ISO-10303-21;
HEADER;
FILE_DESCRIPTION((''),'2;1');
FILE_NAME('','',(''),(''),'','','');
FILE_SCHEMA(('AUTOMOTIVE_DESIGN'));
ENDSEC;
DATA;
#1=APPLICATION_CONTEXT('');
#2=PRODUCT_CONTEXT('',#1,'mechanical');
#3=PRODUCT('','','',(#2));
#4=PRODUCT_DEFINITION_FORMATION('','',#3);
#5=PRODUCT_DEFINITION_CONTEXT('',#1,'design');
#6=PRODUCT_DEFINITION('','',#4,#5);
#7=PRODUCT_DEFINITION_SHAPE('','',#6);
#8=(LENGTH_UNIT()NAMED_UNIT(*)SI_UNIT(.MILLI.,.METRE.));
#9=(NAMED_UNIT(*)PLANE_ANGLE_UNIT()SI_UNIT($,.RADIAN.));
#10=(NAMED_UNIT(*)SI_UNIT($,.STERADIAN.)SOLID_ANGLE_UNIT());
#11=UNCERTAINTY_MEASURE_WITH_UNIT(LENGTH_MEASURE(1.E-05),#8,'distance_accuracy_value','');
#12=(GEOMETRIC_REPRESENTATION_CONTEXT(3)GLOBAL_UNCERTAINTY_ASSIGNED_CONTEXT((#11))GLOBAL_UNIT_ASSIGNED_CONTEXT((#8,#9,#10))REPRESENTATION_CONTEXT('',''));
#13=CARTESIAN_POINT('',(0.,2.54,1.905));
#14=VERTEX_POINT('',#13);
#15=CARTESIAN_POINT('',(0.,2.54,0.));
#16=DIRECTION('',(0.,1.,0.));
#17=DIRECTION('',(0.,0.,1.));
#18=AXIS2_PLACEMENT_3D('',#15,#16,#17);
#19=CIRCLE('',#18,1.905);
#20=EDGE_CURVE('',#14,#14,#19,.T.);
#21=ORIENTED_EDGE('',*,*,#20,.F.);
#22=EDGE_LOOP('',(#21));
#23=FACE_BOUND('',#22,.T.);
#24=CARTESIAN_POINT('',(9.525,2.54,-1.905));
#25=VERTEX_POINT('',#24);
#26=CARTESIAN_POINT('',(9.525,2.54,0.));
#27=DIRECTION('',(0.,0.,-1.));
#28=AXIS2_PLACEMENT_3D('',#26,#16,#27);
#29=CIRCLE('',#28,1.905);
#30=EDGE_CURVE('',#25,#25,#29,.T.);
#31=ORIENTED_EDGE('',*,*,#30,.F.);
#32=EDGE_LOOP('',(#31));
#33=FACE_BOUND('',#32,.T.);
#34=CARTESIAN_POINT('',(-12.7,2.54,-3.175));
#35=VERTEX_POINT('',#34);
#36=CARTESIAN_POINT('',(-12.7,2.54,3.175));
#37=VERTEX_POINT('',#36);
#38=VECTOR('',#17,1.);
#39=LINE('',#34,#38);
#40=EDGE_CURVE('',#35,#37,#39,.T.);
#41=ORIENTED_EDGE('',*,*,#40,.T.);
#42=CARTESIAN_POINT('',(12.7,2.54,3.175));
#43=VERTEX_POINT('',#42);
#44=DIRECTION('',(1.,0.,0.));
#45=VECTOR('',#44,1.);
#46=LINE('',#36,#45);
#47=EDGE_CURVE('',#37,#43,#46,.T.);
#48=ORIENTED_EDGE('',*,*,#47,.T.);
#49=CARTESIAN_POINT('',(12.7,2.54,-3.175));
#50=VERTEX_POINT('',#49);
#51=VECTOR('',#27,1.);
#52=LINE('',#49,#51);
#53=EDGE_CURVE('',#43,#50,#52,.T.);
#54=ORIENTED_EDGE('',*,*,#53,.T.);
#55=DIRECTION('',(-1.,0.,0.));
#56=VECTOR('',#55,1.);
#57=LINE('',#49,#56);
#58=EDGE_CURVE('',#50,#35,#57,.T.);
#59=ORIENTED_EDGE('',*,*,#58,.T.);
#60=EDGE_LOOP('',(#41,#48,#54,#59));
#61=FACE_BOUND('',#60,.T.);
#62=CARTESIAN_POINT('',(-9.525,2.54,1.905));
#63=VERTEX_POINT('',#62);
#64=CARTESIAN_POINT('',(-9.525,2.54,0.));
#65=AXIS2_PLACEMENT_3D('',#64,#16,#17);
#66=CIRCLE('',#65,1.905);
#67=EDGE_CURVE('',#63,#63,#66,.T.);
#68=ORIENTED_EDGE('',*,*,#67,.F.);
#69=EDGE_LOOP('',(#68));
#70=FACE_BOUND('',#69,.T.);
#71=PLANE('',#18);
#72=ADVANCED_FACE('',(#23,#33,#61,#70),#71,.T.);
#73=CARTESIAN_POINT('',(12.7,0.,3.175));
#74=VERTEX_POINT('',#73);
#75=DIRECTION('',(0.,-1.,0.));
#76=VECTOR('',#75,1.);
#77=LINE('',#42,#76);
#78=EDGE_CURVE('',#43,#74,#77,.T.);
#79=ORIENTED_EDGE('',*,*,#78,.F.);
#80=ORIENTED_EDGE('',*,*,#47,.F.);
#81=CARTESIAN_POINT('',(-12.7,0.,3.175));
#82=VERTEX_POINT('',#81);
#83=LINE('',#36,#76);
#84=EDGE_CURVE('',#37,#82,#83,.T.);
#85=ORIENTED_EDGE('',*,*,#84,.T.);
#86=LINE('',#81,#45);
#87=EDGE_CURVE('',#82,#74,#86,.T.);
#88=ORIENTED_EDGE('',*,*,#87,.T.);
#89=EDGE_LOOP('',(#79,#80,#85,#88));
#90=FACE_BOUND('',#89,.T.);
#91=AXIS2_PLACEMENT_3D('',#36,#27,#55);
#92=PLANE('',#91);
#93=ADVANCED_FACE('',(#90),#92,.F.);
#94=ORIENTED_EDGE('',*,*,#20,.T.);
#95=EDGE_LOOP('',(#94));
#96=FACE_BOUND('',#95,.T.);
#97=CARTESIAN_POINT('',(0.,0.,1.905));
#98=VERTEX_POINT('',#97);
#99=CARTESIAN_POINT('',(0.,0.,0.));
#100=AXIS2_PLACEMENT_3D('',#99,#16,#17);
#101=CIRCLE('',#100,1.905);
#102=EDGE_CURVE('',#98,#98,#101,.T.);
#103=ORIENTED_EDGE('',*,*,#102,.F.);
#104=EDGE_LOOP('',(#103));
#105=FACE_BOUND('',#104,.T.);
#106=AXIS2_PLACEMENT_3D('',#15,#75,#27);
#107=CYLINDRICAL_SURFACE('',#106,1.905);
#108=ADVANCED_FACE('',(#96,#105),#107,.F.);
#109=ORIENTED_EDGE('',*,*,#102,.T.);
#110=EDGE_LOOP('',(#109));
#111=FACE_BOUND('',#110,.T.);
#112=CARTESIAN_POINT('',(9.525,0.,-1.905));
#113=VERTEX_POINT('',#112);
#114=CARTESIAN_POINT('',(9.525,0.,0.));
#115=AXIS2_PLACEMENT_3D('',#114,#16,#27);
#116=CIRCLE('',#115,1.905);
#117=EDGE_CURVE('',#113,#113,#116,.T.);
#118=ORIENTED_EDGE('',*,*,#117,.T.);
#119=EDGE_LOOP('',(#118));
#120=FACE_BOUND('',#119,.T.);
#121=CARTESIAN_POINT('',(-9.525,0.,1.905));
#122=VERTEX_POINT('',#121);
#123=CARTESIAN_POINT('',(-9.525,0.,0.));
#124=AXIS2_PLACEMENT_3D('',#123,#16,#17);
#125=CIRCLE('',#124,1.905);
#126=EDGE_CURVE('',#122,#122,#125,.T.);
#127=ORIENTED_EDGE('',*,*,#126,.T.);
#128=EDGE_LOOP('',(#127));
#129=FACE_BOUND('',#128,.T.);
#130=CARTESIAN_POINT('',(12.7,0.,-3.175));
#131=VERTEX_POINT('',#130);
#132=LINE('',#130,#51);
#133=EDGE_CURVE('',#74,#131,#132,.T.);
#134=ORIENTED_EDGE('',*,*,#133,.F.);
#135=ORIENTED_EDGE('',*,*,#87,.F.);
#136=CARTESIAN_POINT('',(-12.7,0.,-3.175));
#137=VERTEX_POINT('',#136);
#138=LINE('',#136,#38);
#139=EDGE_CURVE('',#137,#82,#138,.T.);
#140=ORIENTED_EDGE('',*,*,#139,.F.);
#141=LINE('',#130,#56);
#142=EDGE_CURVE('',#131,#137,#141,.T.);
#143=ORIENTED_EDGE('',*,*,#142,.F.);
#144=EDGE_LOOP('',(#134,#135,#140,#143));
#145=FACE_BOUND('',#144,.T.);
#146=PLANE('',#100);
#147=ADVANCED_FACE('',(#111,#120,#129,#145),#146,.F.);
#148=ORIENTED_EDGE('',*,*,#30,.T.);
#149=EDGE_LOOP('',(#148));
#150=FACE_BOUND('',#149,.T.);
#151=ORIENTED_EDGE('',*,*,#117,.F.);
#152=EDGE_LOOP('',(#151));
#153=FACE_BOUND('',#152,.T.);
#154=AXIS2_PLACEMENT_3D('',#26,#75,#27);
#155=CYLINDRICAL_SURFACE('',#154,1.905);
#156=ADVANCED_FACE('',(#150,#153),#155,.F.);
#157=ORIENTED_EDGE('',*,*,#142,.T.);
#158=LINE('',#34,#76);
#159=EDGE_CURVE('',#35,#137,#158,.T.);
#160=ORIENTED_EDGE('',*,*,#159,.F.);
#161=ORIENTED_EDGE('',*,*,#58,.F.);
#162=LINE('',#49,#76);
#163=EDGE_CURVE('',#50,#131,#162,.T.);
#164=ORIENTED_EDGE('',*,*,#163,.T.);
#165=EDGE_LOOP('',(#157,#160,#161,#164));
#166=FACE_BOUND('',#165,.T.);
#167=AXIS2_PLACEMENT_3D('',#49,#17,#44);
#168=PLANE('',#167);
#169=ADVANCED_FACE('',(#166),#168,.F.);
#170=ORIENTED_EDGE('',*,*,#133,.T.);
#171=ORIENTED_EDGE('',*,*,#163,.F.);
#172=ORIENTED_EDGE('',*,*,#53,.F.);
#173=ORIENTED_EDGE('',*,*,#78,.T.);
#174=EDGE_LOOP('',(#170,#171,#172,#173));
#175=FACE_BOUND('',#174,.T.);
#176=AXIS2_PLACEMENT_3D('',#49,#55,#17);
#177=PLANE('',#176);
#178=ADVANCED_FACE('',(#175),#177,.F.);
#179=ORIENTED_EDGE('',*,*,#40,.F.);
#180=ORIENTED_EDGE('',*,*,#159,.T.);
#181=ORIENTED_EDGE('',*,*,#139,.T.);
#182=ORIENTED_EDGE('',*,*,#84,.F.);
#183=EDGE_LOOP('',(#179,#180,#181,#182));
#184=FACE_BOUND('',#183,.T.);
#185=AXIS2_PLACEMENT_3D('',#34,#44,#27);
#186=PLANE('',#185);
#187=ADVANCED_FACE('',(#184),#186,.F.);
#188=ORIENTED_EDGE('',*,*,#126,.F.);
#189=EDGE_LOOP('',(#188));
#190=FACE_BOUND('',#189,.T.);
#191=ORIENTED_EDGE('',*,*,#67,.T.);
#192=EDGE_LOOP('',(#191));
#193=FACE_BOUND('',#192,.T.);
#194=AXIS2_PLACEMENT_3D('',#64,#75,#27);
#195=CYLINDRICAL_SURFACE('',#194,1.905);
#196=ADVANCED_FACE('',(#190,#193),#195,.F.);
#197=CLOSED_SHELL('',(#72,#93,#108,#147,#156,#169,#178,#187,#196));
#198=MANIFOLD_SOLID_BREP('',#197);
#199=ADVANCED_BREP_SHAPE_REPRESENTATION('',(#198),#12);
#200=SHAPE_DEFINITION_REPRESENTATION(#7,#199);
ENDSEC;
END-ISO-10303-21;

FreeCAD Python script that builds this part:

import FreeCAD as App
import Part
import Sketcher
from FreeCAD import Vector
Q = App.Units.Quantity


def add_polygon(sketch, points):
    """Adds a closed chain of lines whose ends are joined by coincident constraints."""
    first, n = sketch.GeometryCount, len(points)
    for a, b in zip(points, points[1:] + points[:1]):
        sketch.addGeometry(Part.LineSegment(App.Vector(*a, 0), App.Vector(*b, 0)), False)
    for i in range(n):
        sketch.addConstraint(Sketcher.Constraint("Coincident", first + i, 2, first + (i + 1) % n, 1))

doc = App.newDocument("Part")
params = doc.addObject("Spreadsheet::Sheet", "Params")
for row, (alias, value) in enumerate([
    ("sketch1_diameter", "0.15 in"),
    ("sketch1_width", "1 in"),
    ("sketch1_height", "0.25 in"),
    ("pad1_length", "0.1 in"),
], start=1):
    params.set(f"A{row}", alias)
    params.set(f"B{row}", "=" + value)
    params.setAlias(f"B{row}", alias)

body = doc.addObject("PartDesign::Body", "Body")

# Sketch on XZ plane
sketch1 = body.newObject("Sketcher::SketchObject", "Sketch")
sketch1.AttachmentSupport = (doc.getObject("XZ_Plane"), [""])
sketch1.MapMode = "FlatFace"
add_polygon(sketch1, [(-12.7, -3.2), (-12.7, 3.2), (12.7, 3.2), (12.7, -3.2)])  # lines 0-3
sketch1.addGeometry(Part.Circle(Vector(-9.5, 0, 0), Vector(0, 0, 1), 1.9), False)  # 4
sketch1.addGeometry(Part.Circle(Vector(0, 0, 0), Vector(0, 0, 1), 1.9), False)  # 5
sketch1.addGeometry(Part.Circle(Vector(9.5, 0, 0), Vector(0, 0, 1), 1.9), False)  # 6
sketch1.addConstraint([
    Sketcher.Constraint("Vertical", 0),
    Sketcher.Constraint("Horizontal", 1),
    Sketcher.Constraint("Vertical", 2),
    Sketcher.Constraint("Horizontal", 3),
    Sketcher.Constraint("Coincident", 5, 3, -1, 1),
    Sketcher.Constraint("Equal", 4, 5),
    Sketcher.Constraint("Equal", 5, 6),
    Sketcher.Constraint("Symmetric", 4, 3, 6, 3, -1, 1),
    Sketcher.Constraint("Symmetric", 0, 2, 2, 2, -1, 1),
    Sketcher.Constraint("PointOnObject", 4, 3, -1),
    Sketcher.Constraint("Diameter", 4, Q("0.15 in")),
    Sketcher.Constraint("DistanceX", 1, 1, 1, 2, Q("1 in")),
    Sketcher.Constraint("DistanceY", 0, 1, 0, 2, Q("0.25 in")),
    Sketcher.Constraint("DistanceX", 4, 3, 6, 3, Q("0.75 in")),
])
sketch1.setExpression("Constraints[14]", "Params.sketch1_diameter")
sketch1.setExpression("Constraints[15]", "Params.sketch1_width")
sketch1.setExpression("Constraints[16]", "Params.sketch1_height")
pad1 = body.newObject("PartDesign::Pad", "Pad")
pad1.Profile = sketch1
pad1.setExpression("Length", "Params.pad1_length")
pad1.Reversed = True

doc.recompute()
